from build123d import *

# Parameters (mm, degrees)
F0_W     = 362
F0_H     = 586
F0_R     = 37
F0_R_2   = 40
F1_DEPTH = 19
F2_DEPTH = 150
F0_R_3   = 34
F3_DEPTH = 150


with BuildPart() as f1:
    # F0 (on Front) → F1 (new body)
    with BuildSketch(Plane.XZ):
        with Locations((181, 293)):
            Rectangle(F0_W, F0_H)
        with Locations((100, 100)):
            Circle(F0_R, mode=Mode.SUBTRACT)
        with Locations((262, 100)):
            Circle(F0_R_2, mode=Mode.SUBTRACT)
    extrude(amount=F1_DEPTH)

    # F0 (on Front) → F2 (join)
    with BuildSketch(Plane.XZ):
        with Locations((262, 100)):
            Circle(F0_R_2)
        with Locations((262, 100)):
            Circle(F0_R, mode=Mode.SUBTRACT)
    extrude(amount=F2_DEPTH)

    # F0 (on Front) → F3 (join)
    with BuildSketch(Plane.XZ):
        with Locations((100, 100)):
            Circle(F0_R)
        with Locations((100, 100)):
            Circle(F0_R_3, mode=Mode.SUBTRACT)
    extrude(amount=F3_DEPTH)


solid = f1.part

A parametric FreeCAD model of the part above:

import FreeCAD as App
import Part
import Sketcher
Q = App.Units.Quantity

doc = App.newDocument("Part")
params = doc.addObject("Spreadsheet::Sheet", "Params")
for row, (alias, value) in enumerate([
    ("sketch1_diameter", "74 mm"),
    ("sketch1_diameter2", "80 mm"),
    ("sketch1_width", "362 mm"),
    ("sketch1_height", "586 mm"),
    ("pad1_length", "19 mm"),
    ("sketch2_diameter", "80 mm"),
    ("sketch2_diameter2", "74 mm"),
    ("pad2_length", "150 mm"),
    ("sketch3_diameter", "74 mm"),
    ("sketch3_diameter2", "68 mm"),
    ("pad3_length", "150 mm"),
], start=1):
    params.set(f"A{row}", alias)
    params.set(f"B{row}", "=" + value)
    params.setAlias(f"B{row}", alias)

body = doc.addObject("PartDesign::Body", "Body")

# Sketch on XZ plane
sketch1 = body.newObject("Sketcher::SketchObject", "Sketch")
sketch1.AttachmentSupport = (doc.getObject("XZ_Plane"), [""])
sketch1.MapMode = "FlatFace"
sketch1.addGeometry(Part.LineSegment(App.Vector(0, 586, 0), App.Vector(0, 0, 0)), False)
sketch1.addGeometry(Part.LineSegment(App.Vector(0, 0, 0), App.Vector(362, 0, 0)), False)
sketch1.addGeometry(Part.LineSegment(App.Vector(362, 0, 0), App.Vector(362, 586, 0)), False)
sketch1.addGeometry(Part.LineSegment(App.Vector(362, 586, 0), App.Vector(0, 586, 0)), False)
sketch1.addGeometry(Part.Circle(App.Vector(100, 100, 0), App.Vector(0, 0, 1), 37), False)
sketch1.addGeometry(Part.Circle(App.Vector(262, 100, 0), App.Vector(0, 0, 1), 40), False)
sketch1.addConstraint(Sketcher.Constraint("Coincident", 0, 2, 1, 1))
sketch1.addConstraint(Sketcher.Constraint("Coincident", 1, 2, 2, 1))
sketch1.addConstraint(Sketcher.Constraint("Coincident", 2, 2, 3, 1))
sketch1.addConstraint(Sketcher.Constraint("Coincident", 3, 2, 0, 1))
sketch1.addConstraint(Sketcher.Constraint("Vertical", 0))
sketch1.addConstraint(Sketcher.Constraint("Horizontal", 1))
sketch1.addConstraint(Sketcher.Constraint("Vertical", 2))
sketch1.addConstraint(Sketcher.Constraint("Horizontal", 3))
sketch1.addConstraint(Sketcher.Constraint("Coincident", 0, 2, -1, 1))
sketch1.addConstraint(Sketcher.Constraint("Horizontal", 4, 3, 5, 3))
sketch1.addConstraint(Sketcher.Constraint("Diameter", 4, Q("74 mm")))
sketch1.addConstraint(Sketcher.Constraint("Diameter", 5, Q("80 mm")))
sketch1.addConstraint(Sketcher.Constraint("DistanceX", 1, 1, 1, 2, Q("362 mm")))
sketch1.addConstraint(Sketcher.Constraint("DistanceY", 0, 2, 0, 1, Q("586 mm")))
sketch1.addConstraint(Sketcher.Constraint("DistanceX", -1, 1, 4, 3, Q("100 mm")))
sketch1.addConstraint(Sketcher.Constraint("DistanceY", -1, 1, 4, 3, Q("100 mm")))
sketch1.addConstraint(Sketcher.Constraint("DistanceX", -1, 1, 5, 3, Q("262 mm")))
sketch1.setExpression("Constraints[10]", "Params.sketch1_diameter")
sketch1.setExpression("Constraints[11]", "Params.sketch1_diameter2")
sketch1.setExpression("Constraints[12]", "Params.sketch1_width")
sketch1.setExpression("Constraints[13]", "Params.sketch1_height")
pad1 = body.newObject("PartDesign::Pad", "Pad")
pad1.Profile = sketch1
pad1.setExpression("Length", "Params.pad1_length")

# Sketch on XZ plane
sketch2 = body.newObject("Sketcher::SketchObject", "Sketch001")
sketch2.AttachmentSupport = (doc.getObject("XZ_Plane"), [""])
sketch2.MapMode = "FlatFace"
sketch2.addGeometry(Part.Circle(App.Vector(262, 100, 0), App.Vector(0, 0, 1), 40), False)
sketch2.addGeometry(Part.Circle(App.Vector(262, 100, 0), App.Vector(0, 0, 1), 37), False)
sketch2.addConstraint(Sketcher.Constraint("Coincident", 1, 3, 0, 3))
sketch2.addConstraint(Sketcher.Constraint("Diameter", 0, Q("80 mm")))
sketch2.addConstraint(Sketcher.Constraint("Diameter", 1, Q("74 mm")))
sketch2.addConstraint(Sketcher.Constraint("DistanceX", -1, 1, 0, 3, Q("262 mm")))
sketch2.addConstraint(Sketcher.Constraint("DistanceY", -1, 1, 0, 3, Q("100 mm")))
sketch2.setExpression("Constraints[1]", "Params.sketch2_diameter")
sketch2.setExpression("Constraints[2]", "Params.sketch2_diameter2")
pad2 = body.newObject("PartDesign::Pad", "Pad001")
pad2.Profile = sketch2
pad2.setExpression("Length", "Params.pad2_length")

# Sketch on XZ plane
sketch3 = body.newObject("Sketcher::SketchObject", "Sketch002")
sketch3.AttachmentSupport = (doc.getObject("XZ_Plane"), [""])
sketch3.MapMode = "FlatFace"
sketch3.addGeometry(Part.Circle(App.Vector(100, 100, 0), App.Vector(0, 0, 1), 37), False)
sketch3.addGeometry(Part.Circle(App.Vector(100, 100, 0), App.Vector(0, 0, 1), 34), False)
sketch3.addConstraint(Sketcher.Constraint("Coincident", 1, 3, 0, 3))
sketch3.addConstraint(Sketcher.Constraint("Diameter", 0, Q("74 mm")))
sketch3.addConstraint(Sketcher.Constraint("Diameter", 1, Q("68 mm")))
sketch3.addConstraint(Sketcher.Constraint("DistanceX", -1, 1, 0, 3, Q("100 mm")))
sketch3.addConstraint(Sketcher.Constraint("DistanceY", -1, 1, 0, 3, Q("100 mm")))
sketch3.setExpression("Constraints[1]", "Params.sketch3_diameter")
sketch3.setExpression("Constraints[2]", "Params.sketch3_diameter2")
pad3 = body.newObject("PartDesign::Pad", "Pad002")
pad3.Profile = sketch3
pad3.setExpression("Length", "Params.pad3_length")

doc.recompute()
